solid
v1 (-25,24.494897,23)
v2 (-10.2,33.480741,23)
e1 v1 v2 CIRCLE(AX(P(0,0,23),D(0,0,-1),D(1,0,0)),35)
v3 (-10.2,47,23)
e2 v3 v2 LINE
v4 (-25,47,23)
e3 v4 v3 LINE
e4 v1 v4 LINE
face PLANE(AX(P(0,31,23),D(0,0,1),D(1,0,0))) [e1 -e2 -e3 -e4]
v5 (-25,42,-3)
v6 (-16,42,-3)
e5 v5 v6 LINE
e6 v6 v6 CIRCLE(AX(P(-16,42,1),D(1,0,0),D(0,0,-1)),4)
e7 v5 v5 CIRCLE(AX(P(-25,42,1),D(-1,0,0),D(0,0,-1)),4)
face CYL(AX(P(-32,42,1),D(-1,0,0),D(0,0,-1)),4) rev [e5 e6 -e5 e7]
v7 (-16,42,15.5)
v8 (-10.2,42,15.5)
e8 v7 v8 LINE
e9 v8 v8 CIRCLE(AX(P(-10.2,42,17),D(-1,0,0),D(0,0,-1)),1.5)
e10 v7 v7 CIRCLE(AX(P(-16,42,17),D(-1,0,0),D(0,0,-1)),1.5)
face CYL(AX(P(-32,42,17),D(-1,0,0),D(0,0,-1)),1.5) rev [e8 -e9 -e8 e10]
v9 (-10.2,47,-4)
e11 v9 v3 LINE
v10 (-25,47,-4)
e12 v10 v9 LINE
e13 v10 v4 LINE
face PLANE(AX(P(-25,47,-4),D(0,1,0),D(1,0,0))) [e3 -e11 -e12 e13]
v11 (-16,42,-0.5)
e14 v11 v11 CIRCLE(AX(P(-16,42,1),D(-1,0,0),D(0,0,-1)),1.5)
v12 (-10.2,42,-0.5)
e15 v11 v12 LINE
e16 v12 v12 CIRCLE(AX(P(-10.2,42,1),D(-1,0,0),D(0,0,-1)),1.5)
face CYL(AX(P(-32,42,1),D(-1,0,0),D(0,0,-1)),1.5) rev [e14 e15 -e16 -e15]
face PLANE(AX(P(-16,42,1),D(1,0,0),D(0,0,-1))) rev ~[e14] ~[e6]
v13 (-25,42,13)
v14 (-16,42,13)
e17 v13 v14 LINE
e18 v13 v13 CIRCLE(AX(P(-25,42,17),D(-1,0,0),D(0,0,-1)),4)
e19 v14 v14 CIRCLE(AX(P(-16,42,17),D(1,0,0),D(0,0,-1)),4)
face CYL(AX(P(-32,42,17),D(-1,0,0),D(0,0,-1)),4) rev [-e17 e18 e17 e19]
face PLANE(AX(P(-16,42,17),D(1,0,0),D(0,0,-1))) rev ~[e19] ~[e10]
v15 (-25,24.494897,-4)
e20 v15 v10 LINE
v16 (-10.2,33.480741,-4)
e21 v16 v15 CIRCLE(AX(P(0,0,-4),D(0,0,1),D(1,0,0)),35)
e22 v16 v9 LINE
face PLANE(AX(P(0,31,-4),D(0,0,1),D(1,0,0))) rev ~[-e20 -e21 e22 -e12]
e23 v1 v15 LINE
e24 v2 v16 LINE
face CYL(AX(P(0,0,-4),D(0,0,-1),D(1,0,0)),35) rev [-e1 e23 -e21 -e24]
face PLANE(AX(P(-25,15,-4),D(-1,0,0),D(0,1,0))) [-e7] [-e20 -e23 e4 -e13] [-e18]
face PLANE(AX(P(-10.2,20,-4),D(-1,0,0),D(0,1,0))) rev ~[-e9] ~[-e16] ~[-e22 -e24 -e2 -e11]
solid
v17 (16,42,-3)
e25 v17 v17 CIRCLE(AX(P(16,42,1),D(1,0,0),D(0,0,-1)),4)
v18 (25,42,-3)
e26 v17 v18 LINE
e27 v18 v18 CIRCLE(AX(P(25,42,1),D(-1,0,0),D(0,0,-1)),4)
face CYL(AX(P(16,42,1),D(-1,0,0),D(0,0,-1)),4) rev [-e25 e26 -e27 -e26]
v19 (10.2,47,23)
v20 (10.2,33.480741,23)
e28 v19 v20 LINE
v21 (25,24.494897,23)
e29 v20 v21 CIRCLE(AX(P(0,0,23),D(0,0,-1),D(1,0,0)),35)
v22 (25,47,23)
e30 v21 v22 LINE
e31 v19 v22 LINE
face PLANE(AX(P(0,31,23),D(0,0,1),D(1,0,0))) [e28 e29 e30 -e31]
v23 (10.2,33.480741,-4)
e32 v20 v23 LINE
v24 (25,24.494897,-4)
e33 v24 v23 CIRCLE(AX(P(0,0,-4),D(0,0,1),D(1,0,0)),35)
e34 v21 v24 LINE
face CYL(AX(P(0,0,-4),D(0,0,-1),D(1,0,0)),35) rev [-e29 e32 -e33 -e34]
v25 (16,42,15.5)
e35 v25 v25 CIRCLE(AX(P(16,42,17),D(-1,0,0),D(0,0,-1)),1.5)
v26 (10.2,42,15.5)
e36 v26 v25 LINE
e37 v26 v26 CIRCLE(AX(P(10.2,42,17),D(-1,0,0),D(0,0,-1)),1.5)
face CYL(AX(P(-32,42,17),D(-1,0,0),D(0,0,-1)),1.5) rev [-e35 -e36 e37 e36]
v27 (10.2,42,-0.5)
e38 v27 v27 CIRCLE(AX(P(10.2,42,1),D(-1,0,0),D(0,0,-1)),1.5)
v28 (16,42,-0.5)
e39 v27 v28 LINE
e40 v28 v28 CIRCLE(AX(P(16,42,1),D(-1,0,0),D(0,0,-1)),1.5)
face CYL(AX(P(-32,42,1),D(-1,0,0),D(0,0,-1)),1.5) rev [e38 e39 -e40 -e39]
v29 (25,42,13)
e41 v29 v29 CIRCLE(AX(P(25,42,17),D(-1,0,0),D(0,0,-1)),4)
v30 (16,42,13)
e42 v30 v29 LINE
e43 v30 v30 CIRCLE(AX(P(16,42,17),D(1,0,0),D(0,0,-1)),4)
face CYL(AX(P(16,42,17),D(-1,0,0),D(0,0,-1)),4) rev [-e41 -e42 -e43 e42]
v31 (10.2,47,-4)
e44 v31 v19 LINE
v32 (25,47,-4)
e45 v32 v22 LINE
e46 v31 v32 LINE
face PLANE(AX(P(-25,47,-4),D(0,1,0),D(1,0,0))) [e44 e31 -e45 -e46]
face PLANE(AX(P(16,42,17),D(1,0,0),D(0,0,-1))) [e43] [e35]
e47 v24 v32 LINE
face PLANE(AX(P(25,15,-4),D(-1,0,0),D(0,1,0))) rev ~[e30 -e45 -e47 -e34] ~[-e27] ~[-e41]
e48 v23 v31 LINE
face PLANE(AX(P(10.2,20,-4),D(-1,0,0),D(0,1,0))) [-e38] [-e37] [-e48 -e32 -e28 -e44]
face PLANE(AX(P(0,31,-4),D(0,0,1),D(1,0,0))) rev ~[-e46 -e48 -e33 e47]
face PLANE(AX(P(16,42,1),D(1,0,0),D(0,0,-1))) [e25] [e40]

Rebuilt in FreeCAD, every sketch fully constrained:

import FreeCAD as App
import Part
import Sketcher
from FreeCAD import Vector


def add_polygon(sketch, points):
    """Adds a closed chain of lines whose ends are joined by coincident constraints."""
    first, n = sketch.GeometryCount, len(points)
    for a, b in zip(points, points[1:] + points[:1]):
        sketch.addGeometry(Part.LineSegment(App.Vector(*a, 0), App.Vector(*b, 0)), False)
    for i in range(n):
        sketch.addConstraint(Sketcher.Constraint("Coincident", first + i, 2, first + (i + 1) % n, 1))

doc = App.newDocument("Part")
body = doc.addObject("PartDesign::Body", "Body")

sketch1 = body.newObject("Sketcher::SketchObject", "Sketch")
sketch1.AttachmentSupport = (doc.getObject("YZ_Plane"), [""])
sketch1.MapMode = "FlatFace"
sketch1.AttachmentOffset = App.Placement(Vector(0, 0, -32), App.Rotation())
sketch1.addGeometry(Part.Circle(Vector(42, 17, 0), Vector(0, 0, 1), 1.5), False)
sketch1.addConstraint([
    Sketcher.Constraint("Diameter", 0, 3.0),
    Sketcher.Constraint("DistanceX", -1, 1, 0, 3, 42.0),
    Sketcher.Constraint("DistanceY", -1, 1, 0, 3, 17.0),
])
pad1 = body.newObject("PartDesign::Pad", "Pad")
pad1.Profile = sketch1
pad1.Length = 64
body2 = doc.addObject("PartDesign::Body", "Body001")
body2.AllowCompound = True

sketch2 = body2.newObject("Sketcher::SketchObject", "Sketch001")
sketch2.AttachmentSupport = (doc.getObject("YZ_Plane001"), [""])
sketch2.MapMode = "FlatFace"
sketch2.AttachmentOffset = App.Placement(Vector(0, 0, -32), App.Rotation())
sketch2.addGeometry(Part.Circle(Vector(42, 1, 0), Vector(0, 0, 1), 1.5), False)
sketch2.addConstraint([
    Sketcher.Constraint("Diameter", 0, 3.0),
    Sketcher.Constraint("DistanceX", -1, 1, 0, 3, 42.0),
    Sketcher.Constraint("DistanceY", -1, 1, 0, 3, 1.0),
])
pad2 = body2.newObject("PartDesign::Pad", "Pad001")
pad2.Profile = sketch2
pad2.Length = 64
doc.recompute()

boolean = body2.newObject("PartDesign::Boolean", "Boolean")
boolean.Type = "Fuse"
boolean.addObjects([body])
body3 = doc.addObject("PartDesign::Body", "Body002")

sketch3 = body3.newObject("Sketcher::SketchObject", "Sketch002")
sketch3.AttachmentSupport = (doc.getObject("YZ_Plane002"), [""])
sketch3.MapMode = "FlatFace"
sketch3.AttachmentOffset = App.Placement(Vector(0, 0, 16), App.Rotation())
sketch3.addGeometry(Part.Circle(Vector(42, 17, 0), Vector(0, 0, 1), 4), False)
sketch3.addConstraint([
    Sketcher.Constraint("Diameter", 0, 8.0),
    Sketcher.Constraint("DistanceX", -1, 1, 0, 3, 42.0),
    Sketcher.Constraint("DistanceY", -1, 1, 0, 3, 17.0),
])
pad3 = body3.newObject("PartDesign::Pad", "Pad002")
pad3.Profile = sketch3
pad3.Length = 16
body4 = doc.addObject("PartDesign::Body", "Body003")

sketch4 = body4.newObject("Sketcher::SketchObject", "Sketch003")
sketch4.AttachmentSupport = (doc.getObject("YZ_Plane003"), [""])
sketch4.MapMode = "FlatFace"
sketch4.AttachmentOffset = App.Placement(Vector(0, 0, 16), App.Rotation())
sketch4.addGeometry(Part.Circle(Vector(42, 1, 0), Vector(0, 0, 1), 4), False)
sketch4.addConstraint([
    Sketcher.Constraint("Diameter", 0, 8.0),
    Sketcher.Constraint("DistanceX", -1, 1, 0, 3, 42.0),
    Sketcher.Constraint("DistanceY", -1, 1, 0, 3, 1.0),
])
pad4 = body4.newObject("PartDesign::Pad", "Pad003")
pad4.Profile = sketch4
pad4.Length = 16
body5 = doc.addObject("PartDesign::Body", "Body004")

sketch5 = body5.newObject("Sketcher::SketchObject", "Sketch004")
sketch5.AttachmentSupport = (doc.getObject("YZ_Plane004"), [""])
sketch5.MapMode = "FlatFace"
sketch5.AttachmentOffset = App.Placement(Vector(0, 0, -32), App.Rotation())
sketch5.addGeometry(Part.Circle(Vector(42, 17, 0), Vector(0, 0, 1), 4), False)
sketch5.addConstraint([
    Sketcher.Constraint("Diameter", 0, 8.0),
    Sketcher.Constraint("DistanceX", -1, 1, 0, 3, 42.0),
    Sketcher.Constraint("DistanceY", -1, 1, 0, 3, 17.0),
])
pad5 = body5.newObject("PartDesign::Pad", "Pad004")
pad5.Profile = sketch5
pad5.Length = 16
body6 = doc.addObject("PartDesign::Body", "Body005")
body6.AllowCompound = True

sketch6 = body6.newObject("Sketcher::SketchObject", "Sketch005")
sketch6.AttachmentSupport = (doc.getObject("YZ_Plane005"), [""])
sketch6.MapMode = "FlatFace"
sketch6.AttachmentOffset = App.Placement(Vector(0, 0, -32), App.Rotation())
sketch6.addGeometry(Part.Circle(Vector(42, 1, 0), Vector(0, 0, 1), 4), False)
sketch6.addConstraint([
    Sketcher.Constraint("Diameter", 0, 8.0),
    Sketcher.Constraint("DistanceX", -1, 1, 0, 3, 42.0),
    Sketcher.Constraint("DistanceY", -1, 1, 0, 3, 1.0),
])
pad6 = body6.newObject("PartDesign::Pad", "Pad005")
pad6.Profile = sketch6
pad6.Length = 16
doc.recompute()

boolean2 = body6.newObject("PartDesign::Boolean", "Boolean001")
boolean2.Type = "Fuse"
boolean2.addObjects([body3])
doc.recompute()

boolean3 = body6.newObject("PartDesign::Boolean", "Boolean002")
boolean3.Type = "Fuse"
boolean3.addObjects([body4])
doc.recompute()

boolean4 = body6.newObject("PartDesign::Boolean", "Boolean003")
boolean4.Type = "Fuse"
boolean4.addObjects([body5])
body7 = doc.addObject("PartDesign::Body", "Body006")

sketch7 = body7.newObject("Sketcher::SketchObject", "Sketch006")
sketch7.AttachmentSupport = (doc.getObject("XY_Plane006"), [""])
sketch7.MapMode = "FlatFace"
sketch7.AttachmentOffset = App.Placement(Vector(0, 0, -3), App.Rotation())
sketch7.addGeometry(Part.Circle(Vector(0, 0, 0), Vector(0, 0, 1), 35), False)
sketch7.addConstraint([
    Sketcher.Constraint("Coincident", 0, 3, -1, 1),
    Sketcher.Constraint("Diameter", 0, 70.0),
])
pad7 = body7.newObject("PartDesign::Pad", "Pad006")
pad7.Profile = sketch7
pad7.Length = 32
body8 = doc.addObject("PartDesign::Body", "Body007")

sketch8 = body8.newObject("Sketcher::SketchObject", "Sketch007")
sketch8.AttachmentSupport = (doc.getObject("XY_Plane007"), [""])
sketch8.MapMode = "FlatFace"
sketch8.AttachmentOffset = App.Placement(Vector(0, 0, -3), App.Rotation())
add_polygon(sketch8, [(-10.2, 47), (-10.2, 20), (10.2, 20), (10.2, 47)])
sketch8.addConstraint([
    Sketcher.Constraint("Vertical", 0),
    Sketcher.Constraint("Horizontal", 1),
    Sketcher.Constraint("Vertical", 2),
    Sketcher.Constraint("Horizontal", 3),
    Sketcher.Constraint("DistanceY", 0, 2, 0, 1, 27.0),
    Sketcher.Constraint("DistanceX", 1, 1, 1, 2, 20.4),
    Sketcher.Constraint("DistanceY", -1, 1, 0, 2, 20.0),
    Sketcher.Constraint("DistanceX", 0, 2, -1, 1, 10.2),
])
pad8 = body8.newObject("PartDesign::Pad", "Pad007")
pad8.Profile = sketch8
pad8.Length = 28
body9 = doc.addObject("PartDesign::Body", "Body008")
body9.AllowCompound = True

sketch9 = body9.newObject("Sketcher::SketchObject", "Sketch008")
sketch9.AttachmentSupport = (doc.getObject("XY_Plane008"), [""])
sketch9.MapMode = "FlatFace"
sketch9.AttachmentOffset = App.Placement(Vector(0, 0, -3), App.Rotation())
add_polygon(sketch9, [(-25, 47), (-25, 15), (25, 15), (25, 47)])
sketch9.addConstraint([
    Sketcher.Constraint("Vertical", 0),
    Sketcher.Constraint("Horizontal", 1),
    Sketcher.Constraint("Vertical", 2),
    Sketcher.Constraint("Horizontal", 3),
    Sketcher.Constraint("DistanceX", 1, 1, 1, 2, 50.0),
    Sketcher.Constraint("DistanceY", 0, 2, 0, 1, 32.0),
    Sketcher.Constraint("DistanceX", 0, 2, -1, 1, 25.0),
    Sketcher.Constraint("DistanceY", -1, 1, 0, 2, 15.0),
])
pad9 = body9.newObject("PartDesign::Pad", "Pad008")
pad9.Profile = sketch9
pad9.Length = 27
doc.recompute()

boolean5 = body9.newObject("PartDesign::Boolean", "Boolean004")
boolean5.Type = "Cut"
boolean5.addObjects([body8])
doc.recompute()

boolean6 = body9.newObject("PartDesign::Boolean", "Boolean005")
boolean6.Type = "Cut"
boolean6.addObjects([body7])
body10 = doc.addObject("PartDesign::Body", "Body009")
body10.AllowCompound = True
doc.recompute()

body9.Placement = App.Placement(Vector(0, 0, -1), App.Rotation(Vector(0, 0, 1), 0))
boolean7 = body10.newObject("PartDesign::Boolean", "Boolean006")
boolean7.Type = "Fuse"
boolean7.addObjects([body9])
doc.recompute()

boolean8 = body10.newObject("PartDesign::Boolean", "Boolean007")
boolean8.Type = "Cut"
boolean8.addObjects([body6])
doc.recompute()

boolean9 = body10.newObject("PartDesign::Boolean", "Boolean008")
boolean9.Type = "Cut"
boolean9.addObjects([body2])

doc.recompute()
